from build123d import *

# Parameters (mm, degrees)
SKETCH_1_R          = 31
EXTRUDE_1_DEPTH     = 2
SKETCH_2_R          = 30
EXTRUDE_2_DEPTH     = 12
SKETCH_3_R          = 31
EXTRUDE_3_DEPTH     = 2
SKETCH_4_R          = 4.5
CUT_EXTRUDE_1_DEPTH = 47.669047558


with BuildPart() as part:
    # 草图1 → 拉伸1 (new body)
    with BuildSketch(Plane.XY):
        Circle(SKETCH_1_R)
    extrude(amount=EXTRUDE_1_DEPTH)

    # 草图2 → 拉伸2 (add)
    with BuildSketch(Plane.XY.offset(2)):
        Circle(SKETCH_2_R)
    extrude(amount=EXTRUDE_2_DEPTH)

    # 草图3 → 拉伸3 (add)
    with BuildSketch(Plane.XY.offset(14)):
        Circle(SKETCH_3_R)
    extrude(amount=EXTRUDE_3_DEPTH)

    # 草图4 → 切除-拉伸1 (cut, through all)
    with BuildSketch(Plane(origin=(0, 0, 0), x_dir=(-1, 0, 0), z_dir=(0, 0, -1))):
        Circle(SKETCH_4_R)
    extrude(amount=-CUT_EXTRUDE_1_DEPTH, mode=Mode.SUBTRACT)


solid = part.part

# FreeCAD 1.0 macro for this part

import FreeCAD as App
import Part
import Sketcher
from FreeCAD import Vector
Q = App.Units.Quantity

doc = App.newDocument("Part")
body = doc.addObject("PartDesign::Body", "Body")

# Sketch on XY plane
sketch1 = doc.addObject("Sketcher::SketchObject", "Sketch")
body.addObject(sketch1)
sketch1.AttachmentSupport = (doc.XY_Plane, [""])
sketch1.MapMode = "FlatFace"
sketch1.addGeometry(Part.Circle(Vector(0, 0, 0), Vector(0, 0, 1), 31), False)
sketch1.addConstraint([
    Sketcher.Constraint("Coincident", 0, 3, -1, 1),
    Sketcher.Constraint("Diameter", 0, Q("62 mm")),
])
pad1 = doc.addObject("PartDesign::Pad", "Pad")
body.addObject(pad1)
pad1.Profile = sketch1
pad1.Length = 2

# Sketch on XY plane
sketch2 = doc.addObject("Sketcher::SketchObject", "Sketch001")
body.addObject(sketch2)
sketch2.AttachmentSupport = (doc.XY_Plane, [""])
sketch2.MapMode = "FlatFace"
sketch2.AttachmentOffset = App.Placement(Vector(0, 0, 2), App.Rotation())
sketch2.addGeometry(Part.Circle(Vector(0, 0, 0), Vector(0, 0, 1), 30), False)
sketch2.addConstraint([
    Sketcher.Constraint("Coincident", 0, 3, -1, 1),
    Sketcher.Constraint("Diameter", 0, Q("60 mm")),
])
pad2 = doc.addObject("PartDesign::Pad", "Pad001")
body.addObject(pad2)
pad2.Profile = sketch2
pad2.Length = 12

# Sketch on XY plane
sketch3 = doc.addObject("Sketcher::SketchObject", "Sketch002")
body.addObject(sketch3)
sketch3.AttachmentSupport = (doc.XY_Plane, [""])
sketch3.MapMode = "FlatFace"
sketch3.AttachmentOffset = App.Placement(Vector(0, 0, 14), App.Rotation())
sketch3.addGeometry(Part.Circle(Vector(0, 0, 0), Vector(0, 0, 1), 31), False)
sketch3.addConstraint([
    Sketcher.Constraint("Coincident", 0, 3, -1, 1),
    Sketcher.Constraint("Diameter", 0, Q("62 mm")),
])
pad3 = doc.addObject("PartDesign::Pad", "Pad002")
body.addObject(pad3)
pad3.Profile = sketch3
pad3.Length = 2

# Sketch on XY plane
sketch4 = doc.addObject("Sketcher::SketchObject", "Sketch003")
body.addObject(sketch4)
sketch4.AttachmentSupport = (doc.XY_Plane, [""])
sketch4.MapMode = "FlatFace"
sketch4.addGeometry(Part.Circle(Vector(0, 0, 0), Vector(0, 0, 1), 4.5), False)
sketch4.addConstraint([
    Sketcher.Constraint("Coincident", 0, 3, -1, 1),
    Sketcher.Constraint("Diameter", 0, Q("9 mm")),
])
pocket1 = doc.addObject("PartDesign::Pocket", "Pocket")
body.addObject(pocket1)
pocket1.Profile = sketch4
pocket1.Type = "ThroughAll"
pocket1.Reversed = True

doc.recompute()
